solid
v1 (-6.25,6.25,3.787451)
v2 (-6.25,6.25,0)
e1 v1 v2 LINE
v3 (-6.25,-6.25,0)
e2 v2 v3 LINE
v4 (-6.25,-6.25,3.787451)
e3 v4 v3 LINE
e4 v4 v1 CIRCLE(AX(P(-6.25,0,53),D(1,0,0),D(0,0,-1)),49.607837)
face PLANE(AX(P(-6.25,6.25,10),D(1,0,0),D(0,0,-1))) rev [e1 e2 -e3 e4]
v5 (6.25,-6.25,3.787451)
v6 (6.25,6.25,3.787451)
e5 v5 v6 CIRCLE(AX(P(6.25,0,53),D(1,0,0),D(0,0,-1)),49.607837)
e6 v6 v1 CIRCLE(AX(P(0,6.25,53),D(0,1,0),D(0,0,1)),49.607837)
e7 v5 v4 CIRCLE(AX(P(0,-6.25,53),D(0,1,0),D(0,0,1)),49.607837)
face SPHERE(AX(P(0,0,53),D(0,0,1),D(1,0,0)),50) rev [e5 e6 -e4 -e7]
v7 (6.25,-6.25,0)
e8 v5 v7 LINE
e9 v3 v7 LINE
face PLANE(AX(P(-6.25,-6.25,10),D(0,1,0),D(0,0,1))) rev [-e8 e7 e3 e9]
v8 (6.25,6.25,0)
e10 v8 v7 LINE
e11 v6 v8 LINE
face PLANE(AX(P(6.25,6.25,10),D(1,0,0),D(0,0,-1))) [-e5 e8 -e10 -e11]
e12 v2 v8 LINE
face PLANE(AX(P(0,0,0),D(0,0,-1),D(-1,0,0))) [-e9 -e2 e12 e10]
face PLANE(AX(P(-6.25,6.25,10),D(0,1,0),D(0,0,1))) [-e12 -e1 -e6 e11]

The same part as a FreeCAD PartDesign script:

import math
import FreeCAD as App
import Part
import Sketcher

doc = App.newDocument("Part")
body = doc.addObject("PartDesign::Body", "Body")

# Sketch on XY plane
sketch1 = body.newObject("Sketcher::SketchObject", "Sketch")
sketch1.AttachmentSupport = (doc.getObject("XY_Plane"), [""])
sketch1.MapMode = "FlatFace"
sketch1.addGeometry([
    Part.LineSegment(App.Vector(-6.25, 6.25, 0), App.Vector(-6.25, -6.25, 0)),
    Part.LineSegment(App.Vector(-6.25, -6.25, 0), App.Vector(6.25, -6.25, 0)),
    Part.LineSegment(App.Vector(6.25, -6.25, 0), App.Vector(6.25, 6.25, 0)),
    Part.LineSegment(App.Vector(6.25, 6.25, 0), App.Vector(-6.25, 6.25, 0)),
], False)
sketch1.addConstraint([
    Sketcher.Constraint("Coincident", 0, 2, 1, 1),
    Sketcher.Constraint("Coincident", 1, 2, 2, 1),
    Sketcher.Constraint("Coincident", 2, 2, 3, 1),
    Sketcher.Constraint("Coincident", 3, 2, 0, 1),
    Sketcher.Constraint("Vertical", 0),
    Sketcher.Constraint("Horizontal", 1),
    Sketcher.Constraint("Vertical", 2),
    Sketcher.Constraint("Horizontal", 3),
    Sketcher.Constraint("Symmetric", 0, 2, 2, 2, -1, 1),
    Sketcher.Constraint("Equal", 3, 0),
    Sketcher.Constraint("DistanceX", 1, 1, 1, 2, 12.5),
])
pad1 = body.newObject("PartDesign::Pad", "Pad")
pad1.Profile = sketch1
pad1.Length = 10

# Sketch on XZ plane
sketch2 = body.newObject("Sketcher::SketchObject", "Sketch001")
sketch2.AttachmentSupport = (doc.getObject("XZ_Plane"), [""])
sketch2.MapMode = "FlatFace"
sketch2.addGeometry([
    Part.LineSegment(App.Vector(0, 41.855907, 0), App.Vector(48.742273, 41.855907, 0)),
    Part.ArcOfCircle(Part.Circle(App.Vector(0, 53, 0), App.Vector(0, 0, 1), 50), math.radians(-90), math.radians(-12.878355)),
    Part.LineSegment(App.Vector(0, 3, 0), App.Vector(0, 41.855907, 0)),
], False)
sketch2.addConstraint([
    Sketcher.Constraint("Coincident", 0, 2, 1, 2),
    Sketcher.Constraint("Coincident", 1, 1, 2, 1),
    Sketcher.Constraint("Coincident", 2, 2, 0, 1),
    Sketcher.Constraint("Horizontal", 0),
    Sketcher.Constraint("Vertical", 2),
    Sketcher.Constraint("PointOnObject", 1, 3, -2),
    Sketcher.Constraint("PointOnObject", 1, 1, -2),
    Sketcher.Constraint("Radius", 1, 50.0),
    Sketcher.Constraint("DistanceY", -1, 1, 1, 3, 53.0),
    Sketcher.Constraint("DistanceX", 0, 1, 0, 2, 48.742273),
])
groove = body.newObject("PartDesign::Groove", "Groove")
groove.Profile = sketch2
groove.ReferenceAxis = (sketch2, ["V_Axis"])
groove.Angle = 360

doc.recompute()
